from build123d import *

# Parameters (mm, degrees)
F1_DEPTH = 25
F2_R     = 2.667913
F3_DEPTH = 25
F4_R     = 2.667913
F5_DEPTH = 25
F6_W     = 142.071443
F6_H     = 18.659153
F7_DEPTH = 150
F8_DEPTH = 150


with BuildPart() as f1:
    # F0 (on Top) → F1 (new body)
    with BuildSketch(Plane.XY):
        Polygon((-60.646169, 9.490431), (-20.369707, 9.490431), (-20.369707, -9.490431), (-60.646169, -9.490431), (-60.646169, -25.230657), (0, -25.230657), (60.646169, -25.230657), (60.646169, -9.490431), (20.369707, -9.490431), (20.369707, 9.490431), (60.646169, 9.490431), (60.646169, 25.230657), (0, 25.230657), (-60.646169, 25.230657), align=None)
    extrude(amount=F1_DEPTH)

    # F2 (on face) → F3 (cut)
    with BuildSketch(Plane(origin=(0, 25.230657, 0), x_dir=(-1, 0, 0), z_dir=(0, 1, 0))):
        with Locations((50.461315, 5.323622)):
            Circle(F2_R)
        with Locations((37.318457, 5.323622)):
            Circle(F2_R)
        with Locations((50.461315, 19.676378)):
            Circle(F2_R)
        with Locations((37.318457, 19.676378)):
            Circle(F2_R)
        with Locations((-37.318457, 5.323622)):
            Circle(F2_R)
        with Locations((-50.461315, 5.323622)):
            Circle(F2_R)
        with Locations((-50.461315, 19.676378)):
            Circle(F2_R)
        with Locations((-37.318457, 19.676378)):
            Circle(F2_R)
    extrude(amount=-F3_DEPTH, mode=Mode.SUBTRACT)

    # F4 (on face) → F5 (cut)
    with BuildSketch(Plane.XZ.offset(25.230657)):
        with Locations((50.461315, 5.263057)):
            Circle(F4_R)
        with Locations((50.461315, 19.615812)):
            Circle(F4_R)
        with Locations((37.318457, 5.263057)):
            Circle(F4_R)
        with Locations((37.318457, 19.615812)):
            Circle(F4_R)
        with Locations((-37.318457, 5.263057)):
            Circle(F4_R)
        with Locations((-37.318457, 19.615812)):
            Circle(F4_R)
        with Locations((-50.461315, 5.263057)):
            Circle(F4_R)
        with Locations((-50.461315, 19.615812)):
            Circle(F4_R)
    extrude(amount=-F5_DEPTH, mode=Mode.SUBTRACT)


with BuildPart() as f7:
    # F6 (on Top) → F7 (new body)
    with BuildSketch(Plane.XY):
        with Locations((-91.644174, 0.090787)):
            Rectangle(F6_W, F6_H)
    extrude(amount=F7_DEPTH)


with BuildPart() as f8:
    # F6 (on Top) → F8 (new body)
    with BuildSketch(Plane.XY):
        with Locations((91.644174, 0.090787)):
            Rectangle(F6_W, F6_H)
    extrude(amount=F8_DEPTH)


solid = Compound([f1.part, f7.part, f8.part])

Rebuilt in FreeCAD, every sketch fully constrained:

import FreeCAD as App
import Part
import Sketcher


def add_polygon(sketch, points):
    """Adds a closed chain of lines whose ends are joined by coincident constraints."""
    first, n = sketch.GeometryCount, len(points)
    for a, b in zip(points, points[1:] + points[:1]):
        sketch.addGeometry(Part.LineSegment(App.Vector(*a, 0), App.Vector(*b, 0)), False)
    for i in range(n):
        sketch.addConstraint(Sketcher.Constraint("Coincident", first + i, 2, first + (i + 1) % n, 1))

doc = App.newDocument("Part")
body = doc.addObject("PartDesign::Body", "Body")

# Sketch on XY plane
sketch1 = doc.addObject("Sketcher::SketchObject", "Sketch")
body.addObject(sketch1)
sketch1.AttachmentSupport = (doc.XY_Plane, [""])
sketch1.MapMode = "FlatFace"
add_polygon(sketch1, [(-61, 9), (-20, 9), (-20, -9), (-61, -9), (-61, -25), (61, -25), (61, -9), (20, -9), (20, 9), (61, 9), (61, 25), (-61, 25)])  # lines 0-11
sketch1.addConstraint([
    Sketcher.Constraint("Horizontal", 0),
    Sketcher.Constraint("Vertical", 1),
    Sketcher.Constraint("Horizontal", 2),
    Sketcher.Constraint("Vertical", 3),
    Sketcher.Constraint("Horizontal", 4),
    Sketcher.Constraint("Vertical", 5),
    Sketcher.Constraint("Horizontal", 6),
    Sketcher.Constraint("Vertical", 7),
    Sketcher.Constraint("Horizontal", 8),
    Sketcher.Constraint("Vertical", 9),
    Sketcher.Constraint("Horizontal", 10),
    Sketcher.Constraint("Vertical", 11),
    Sketcher.Constraint("Symmetric", 0, 2, 6, 2, -1, 1),
    Sketcher.Constraint("Symmetric", 2, 2, 8, 2, -1, 1),
    Sketcher.Constraint("Symmetric", 4, 2, 10, 2, -1, 1),
    Sketcher.Constraint("Symmetric", 2, 2, 5, 2, -2),
    Sketcher.Constraint("DistanceX", 4, 1, 4, 2, 121.292338),
    Sketcher.Constraint("DistanceY", 1, 2, 1, 1, 18.980862),
    Sketcher.Constraint("DistanceX", 0, 1, 0, 2, 40.276462),
    Sketcher.Constraint("DistanceY", 3, 2, 3, 1, 15.740226),
])
pad1 = doc.addObject("PartDesign::Pad", "Pad")
body.addObject(pad1)
pad1.Profile = sketch1
pad1.Length = 25

# Sketch on XZ plane
sketch2 = doc.addObject("Sketcher::SketchObject", "Sketch001")
body.addObject(sketch2)
sketch2.AttachmentSupport = (doc.XZ_Plane, [""])
sketch2.MapMode = "FlatFace"
sketch2.AttachmentOffset = App.Placement(App.Vector(0, 0, -25.230657), App.Rotation())
sketch2.addGeometry([
    Part.Circle(App.Vector(-50.5, 5.3, 0), App.Vector(0, 0, 1), 2.7),  # 0
    Part.Circle(App.Vector(-37.3, 5.3, 0), App.Vector(0, 0, 1), 2.7),  # 1
    Part.Circle(App.Vector(-50.5, 19.7, 0), App.Vector(0, 0, 1), 2.7),  # 2
    Part.Circle(App.Vector(-37.3, 19.7, 0), App.Vector(0, 0, 1), 2.7),  # 3
    Part.Circle(App.Vector(37.3, 5.3, 0), App.Vector(0, 0, 1), 2.7),  # 4
    Part.Circle(App.Vector(50.5, 5.3, 0), App.Vector(0, 0, 1), 2.7),  # 5
    Part.Circle(App.Vector(50.5, 19.7, 0), App.Vector(0, 0, 1), 2.7),  # 6
    Part.Circle(App.Vector(37.3, 19.7, 0), App.Vector(0, 0, 1), 2.7),  # 7
], False)
sketch2.addConstraint([
    Sketcher.Constraint("Equal", 0, 1),
    Sketcher.Constraint("Equal", 1, 2),
    Sketcher.Constraint("Equal", 2, 3),
    Sketcher.Constraint("Equal", 3, 4),
    Sketcher.Constraint("Equal", 4, 5),
    Sketcher.Constraint("Equal", 5, 6),
    Sketcher.Constraint("Equal", 6, 7),
    Sketcher.Constraint("Symmetric", 1, 3, 4, 3, -2),
    Sketcher.Constraint("Symmetric", 0, 3, 5, 3, -2),
    Sketcher.Constraint("Symmetric", 2, 3, 6, 3, -2),
    Sketcher.Constraint("Symmetric", 3, 3, 7, 3, -2),
    Sketcher.Constraint("Horizontal", 0, 3, 1, 3),
    Sketcher.Constraint("Horizontal", 2, 3, 3, 3),
    Sketcher.Constraint("Vertical", 0, 3, 2, 3),
    Sketcher.Constraint("Vertical", 1, 3, 3, 3),
    Sketcher.Constraint("Diameter", 0, 5.335826),
    Sketcher.Constraint("DistanceX", 0, 3, 5, 3, 100.92263),
    Sketcher.Constraint("DistanceY", -1, 1, 0, 3, 5.323622),
    Sketcher.Constraint("DistanceX", 1, 3, -1, 1, 37.318457),
    Sketcher.Constraint("DistanceY", -1, 1, 2, 3, 19.676378),
])
pocket1 = doc.addObject("PartDesign::Pocket", "Pocket")
body.addObject(pocket1)
pocket1.Profile = sketch2
pocket1.Length = 25
pocket1.Reversed = True

# Sketch on XZ plane
sketch3 = doc.addObject("Sketcher::SketchObject", "Sketch002")
body.addObject(sketch3)
sketch3.AttachmentSupport = (doc.XZ_Plane, [""])
sketch3.MapMode = "FlatFace"
sketch3.AttachmentOffset = App.Placement(App.Vector(0, 0, 25.230657), App.Rotation())
sketch3.addGeometry([
    Part.Circle(App.Vector(50.5, 5.3, 0), App.Vector(0, 0, 1), 2.7),  # 0
    Part.Circle(App.Vector(50.5, 19.6, 0), App.Vector(0, 0, 1), 2.7),  # 1
    Part.Circle(App.Vector(37.3, 5.3, 0), App.Vector(0, 0, 1), 2.7),  # 2
    Part.Circle(App.Vector(37.3, 19.6, 0), App.Vector(0, 0, 1), 2.7),  # 3
    Part.Circle(App.Vector(-37.3, 5.3, 0), App.Vector(0, 0, 1), 2.7),  # 4
    Part.Circle(App.Vector(-37.3, 19.6, 0), App.Vector(0, 0, 1), 2.7),  # 5
    Part.Circle(App.Vector(-50.5, 5.3, 0), App.Vector(0, 0, 1), 2.7),  # 6
    Part.Circle(App.Vector(-50.5, 19.6, 0), App.Vector(0, 0, 1), 2.7),  # 7
], False)
sketch3.addConstraint([
    Sketcher.Constraint("Equal", 0, 1),
    Sketcher.Constraint("Equal", 1, 2),
    Sketcher.Constraint("Equal", 2, 3),
    Sketcher.Constraint("Equal", 3, 4),
    Sketcher.Constraint("Equal", 4, 5),
    Sketcher.Constraint("Equal", 5, 6),
    Sketcher.Constraint("Equal", 6, 7),
    Sketcher.Constraint("Symmetric", 2, 3, 4, 3, -2),
    Sketcher.Constraint("Symmetric", 3, 3, 5, 3, -2),
    Sketcher.Constraint("Symmetric", 0, 3, 6, 3, -2),
    Sketcher.Constraint("Symmetric", 1, 3, 7, 3, -2),
    Sketcher.Constraint("Horizontal", 0, 3, 2, 3),
    Sketcher.Constraint("Horizontal", 1, 3, 3, 3),
    Sketcher.Constraint("Vertical", 0, 3, 1, 3),
    Sketcher.Constraint("Vertical", 2, 3, 3, 3),
    Sketcher.Constraint("Diameter", 0, 5.335826),
    Sketcher.Constraint("DistanceY", -1, 1, 1, 3, 19.615812),
    Sketcher.Constraint("DistanceX", 6, 3, 0, 3, 100.92263),
    Sketcher.Constraint("DistanceY", -1, 1, 0, 3, 5.263057),
    Sketcher.Constraint("DistanceX", -1, 1, 2, 3, 37.318457),
])
pocket2 = doc.addObject("PartDesign::Pocket", "Pocket001")
body.addObject(pocket2)
pocket2.Profile = sketch3
pocket2.Length = 25
body2 = doc.addObject("PartDesign::Body", "Body001")

# Sketch on XY plane
sketch4 = doc.addObject("Sketcher::SketchObject", "Sketch003")
body2.addObject(sketch4)
sketch4.AttachmentSupport = (doc.getObject("XY_Plane001"), [""])
sketch4.MapMode = "FlatFace"
add_polygon(sketch4, [(-163, 9), (-163, -9), (-21, -9), (-21, 9)])  # lines 0-3
sketch4.addConstraint([
    Sketcher.Constraint("Vertical", 0),
    Sketcher.Constraint("Horizontal", 1),
    Sketcher.Constraint("Vertical", 2),
    Sketcher.Constraint("Horizontal", 3),
    Sketcher.Constraint("DistanceX", 1, 1, 1, 2, 142.071443),
    Sketcher.Constraint("DistanceY", 0, 2, 0, 1, 18.659153),
    Sketcher.Constraint("DistanceY", 0, 2, -1, 1, 9.238789),
    Sketcher.Constraint("DistanceX", 0, 2, -1, 1, 162.679895),
])
pad2 = doc.addObject("PartDesign::Pad", "Pad001")
body2.addObject(pad2)
pad2.Profile = sketch4
pad2.Length = 150
body3 = doc.addObject("PartDesign::Body", "Body002")

# Sketch on XY plane
sketch5 = doc.addObject("Sketcher::SketchObject", "Sketch004")
body3.addObject(sketch5)
sketch5.AttachmentSupport = (doc.getObject("XY_Plane002"), [""])
sketch5.MapMode = "FlatFace"
add_polygon(sketch5, [(21, 9), (21, -9), (163, -9), (163, 9)])  # lines 0-3
sketch5.addConstraint([
    Sketcher.Constraint("Vertical", 0),
    Sketcher.Constraint("Horizontal", 1),
    Sketcher.Constraint("Vertical", 2),
    Sketcher.Constraint("Horizontal", 3),
    Sketcher.Constraint("DistanceX", 1, 1, 1, 2, 142.071443),
    Sketcher.Constraint("DistanceY", 0, 2, 0, 1, 18.659153),
    Sketcher.Constraint("DistanceY", 0, 2, -1, 1, 9.238789),
    Sketcher.Constraint("DistanceX", -1, 1, 0, 2, 20.608452),
])
pad3 = doc.addObject("PartDesign::Pad", "Pad002")
body3.addObject(pad3)
pad3.Profile = sketch5
pad3.Length = 150

doc.recompute()
